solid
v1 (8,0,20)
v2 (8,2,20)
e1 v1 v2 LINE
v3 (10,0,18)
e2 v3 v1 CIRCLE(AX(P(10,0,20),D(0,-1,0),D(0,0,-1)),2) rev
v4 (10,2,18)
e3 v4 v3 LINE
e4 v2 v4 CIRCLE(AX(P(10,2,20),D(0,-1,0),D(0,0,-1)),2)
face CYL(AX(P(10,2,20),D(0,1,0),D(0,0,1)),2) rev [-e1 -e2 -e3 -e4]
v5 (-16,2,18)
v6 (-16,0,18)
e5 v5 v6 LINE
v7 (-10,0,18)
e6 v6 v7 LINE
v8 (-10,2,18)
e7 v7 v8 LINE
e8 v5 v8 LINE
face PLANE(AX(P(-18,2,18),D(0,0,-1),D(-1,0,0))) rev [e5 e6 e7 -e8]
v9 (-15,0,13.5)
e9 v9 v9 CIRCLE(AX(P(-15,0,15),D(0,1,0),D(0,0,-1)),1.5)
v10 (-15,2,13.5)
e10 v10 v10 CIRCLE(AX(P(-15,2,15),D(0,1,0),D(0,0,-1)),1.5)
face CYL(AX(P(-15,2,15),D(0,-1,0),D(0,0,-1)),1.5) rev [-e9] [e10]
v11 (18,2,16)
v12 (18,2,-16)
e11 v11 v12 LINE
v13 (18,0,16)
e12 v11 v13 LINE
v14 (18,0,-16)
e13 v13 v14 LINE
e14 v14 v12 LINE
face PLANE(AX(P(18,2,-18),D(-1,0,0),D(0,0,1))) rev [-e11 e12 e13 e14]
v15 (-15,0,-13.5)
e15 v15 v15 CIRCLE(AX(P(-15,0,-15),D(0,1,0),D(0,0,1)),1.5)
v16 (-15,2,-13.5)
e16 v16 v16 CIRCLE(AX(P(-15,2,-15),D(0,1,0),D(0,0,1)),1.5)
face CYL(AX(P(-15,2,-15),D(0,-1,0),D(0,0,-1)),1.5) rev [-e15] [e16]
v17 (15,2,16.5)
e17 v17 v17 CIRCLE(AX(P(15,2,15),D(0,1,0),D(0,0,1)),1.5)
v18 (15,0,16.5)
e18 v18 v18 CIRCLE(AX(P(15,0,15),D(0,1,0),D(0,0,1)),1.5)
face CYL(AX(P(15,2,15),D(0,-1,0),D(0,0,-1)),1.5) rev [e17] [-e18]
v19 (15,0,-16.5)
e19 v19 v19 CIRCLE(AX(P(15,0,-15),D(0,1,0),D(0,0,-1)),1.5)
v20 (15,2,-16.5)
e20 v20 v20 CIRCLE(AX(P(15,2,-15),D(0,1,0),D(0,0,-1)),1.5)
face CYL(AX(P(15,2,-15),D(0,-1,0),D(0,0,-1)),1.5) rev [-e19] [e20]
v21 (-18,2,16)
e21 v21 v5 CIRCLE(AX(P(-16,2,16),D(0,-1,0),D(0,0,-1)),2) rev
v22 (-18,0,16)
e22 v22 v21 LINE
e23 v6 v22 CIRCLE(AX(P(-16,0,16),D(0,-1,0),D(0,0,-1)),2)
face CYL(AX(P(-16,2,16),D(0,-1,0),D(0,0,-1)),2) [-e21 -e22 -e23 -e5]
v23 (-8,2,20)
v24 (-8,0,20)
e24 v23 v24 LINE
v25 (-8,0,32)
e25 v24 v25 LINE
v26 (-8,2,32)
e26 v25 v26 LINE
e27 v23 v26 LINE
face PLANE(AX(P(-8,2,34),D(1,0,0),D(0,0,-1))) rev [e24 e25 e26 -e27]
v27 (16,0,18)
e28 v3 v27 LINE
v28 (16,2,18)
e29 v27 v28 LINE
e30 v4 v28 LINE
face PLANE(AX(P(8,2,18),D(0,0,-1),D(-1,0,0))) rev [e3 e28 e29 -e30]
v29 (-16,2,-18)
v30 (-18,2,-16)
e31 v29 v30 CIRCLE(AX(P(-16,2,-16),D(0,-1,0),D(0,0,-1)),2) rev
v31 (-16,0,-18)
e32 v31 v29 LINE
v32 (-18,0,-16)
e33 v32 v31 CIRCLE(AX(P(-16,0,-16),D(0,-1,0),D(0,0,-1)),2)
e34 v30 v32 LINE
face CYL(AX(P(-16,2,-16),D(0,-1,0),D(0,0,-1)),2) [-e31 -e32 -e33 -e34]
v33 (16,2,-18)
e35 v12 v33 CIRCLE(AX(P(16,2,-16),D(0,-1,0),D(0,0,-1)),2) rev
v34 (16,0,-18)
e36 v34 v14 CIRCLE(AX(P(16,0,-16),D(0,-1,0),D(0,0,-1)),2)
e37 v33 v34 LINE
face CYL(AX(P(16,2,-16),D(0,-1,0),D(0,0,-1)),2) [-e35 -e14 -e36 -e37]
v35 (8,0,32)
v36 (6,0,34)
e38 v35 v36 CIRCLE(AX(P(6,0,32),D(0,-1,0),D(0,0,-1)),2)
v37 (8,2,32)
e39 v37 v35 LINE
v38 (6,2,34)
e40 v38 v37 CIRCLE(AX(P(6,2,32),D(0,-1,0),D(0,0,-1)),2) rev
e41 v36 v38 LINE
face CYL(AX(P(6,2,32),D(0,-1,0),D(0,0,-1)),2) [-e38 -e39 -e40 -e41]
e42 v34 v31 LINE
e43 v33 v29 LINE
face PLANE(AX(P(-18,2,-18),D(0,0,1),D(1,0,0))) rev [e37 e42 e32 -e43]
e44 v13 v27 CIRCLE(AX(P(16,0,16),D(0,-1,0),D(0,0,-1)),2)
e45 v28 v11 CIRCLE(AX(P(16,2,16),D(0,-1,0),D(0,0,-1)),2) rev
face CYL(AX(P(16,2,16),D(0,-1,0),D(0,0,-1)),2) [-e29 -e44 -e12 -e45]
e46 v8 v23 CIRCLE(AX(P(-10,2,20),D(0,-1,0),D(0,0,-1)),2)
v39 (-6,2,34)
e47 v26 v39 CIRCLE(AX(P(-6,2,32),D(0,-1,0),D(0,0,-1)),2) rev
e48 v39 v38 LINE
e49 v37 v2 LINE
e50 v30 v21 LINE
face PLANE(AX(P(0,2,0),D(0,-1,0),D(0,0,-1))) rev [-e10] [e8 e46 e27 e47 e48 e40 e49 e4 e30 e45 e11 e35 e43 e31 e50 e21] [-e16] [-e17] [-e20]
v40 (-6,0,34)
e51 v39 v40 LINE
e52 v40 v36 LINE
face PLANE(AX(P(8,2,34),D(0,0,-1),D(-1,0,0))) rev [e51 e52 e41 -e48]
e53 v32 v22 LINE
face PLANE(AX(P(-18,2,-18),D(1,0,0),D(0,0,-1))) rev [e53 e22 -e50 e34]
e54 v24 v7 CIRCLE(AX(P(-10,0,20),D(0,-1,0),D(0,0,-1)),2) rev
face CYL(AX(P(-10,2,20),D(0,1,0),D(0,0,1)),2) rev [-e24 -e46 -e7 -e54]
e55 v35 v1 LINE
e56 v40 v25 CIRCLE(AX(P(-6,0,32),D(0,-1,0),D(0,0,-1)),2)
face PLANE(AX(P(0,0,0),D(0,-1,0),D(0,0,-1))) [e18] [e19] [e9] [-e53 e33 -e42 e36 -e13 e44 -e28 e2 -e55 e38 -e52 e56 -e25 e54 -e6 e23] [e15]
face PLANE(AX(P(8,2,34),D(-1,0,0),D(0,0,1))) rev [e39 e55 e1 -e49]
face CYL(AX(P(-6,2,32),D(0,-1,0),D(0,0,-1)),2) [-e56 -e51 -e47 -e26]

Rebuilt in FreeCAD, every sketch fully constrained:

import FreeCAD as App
import Part
import Sketcher
Q = App.Units.Quantity


def edges_at(feature, points):
    """Names of the edges that pass closest to the given points."""
    edges = feature.Shape.Edges
    near = lambda p: min(range(len(edges)), key=lambda i: edges[i].distToShape(Part.Vertex(*p))[0])
    return sorted({f"Edge{near(p) + 1}" for p in points})

doc = App.newDocument("Part")
body = doc.addObject("PartDesign::Body", "Body")

# Sketch on XZ plane
sketch1 = body.newObject("Sketcher::SketchObject", "Sketch")
sketch1.AttachmentSupport = (doc.getObject("XZ_Plane"), [""])
sketch1.MapMode = "FlatFace"
sketch1.addGeometry([
    Part.LineSegment(App.Vector(18, -18, 0), App.Vector(-18, -18, 0)),  # 0
    Part.LineSegment(App.Vector(-18, -18, 0), App.Vector(-18, 18, 0)),  # 1
    Part.LineSegment(App.Vector(-18, 18, 0), App.Vector(-8, 18, 0)),  # 2
    Part.LineSegment(App.Vector(-8, 18, 0), App.Vector(-8, 34, 0)),  # 3
    Part.LineSegment(App.Vector(-8, 34, 0), App.Vector(8, 34, 0)),  # 4
    Part.LineSegment(App.Vector(8, 34, 0), App.Vector(8, 18, 0)),  # 5
    Part.LineSegment(App.Vector(8, 18, 0), App.Vector(18, 18, 0)),  # 6
    Part.LineSegment(App.Vector(18, 18, 0), App.Vector(18, -18, 0)),  # 7
    Part.Circle(App.Vector(15, 15, 0), App.Vector(0, 0, 1), 1.5),  # 8
    Part.Circle(App.Vector(-15, 15, 0), App.Vector(0, 0, 1), 1.5),  # 9
    Part.Circle(App.Vector(15, -15, 0), App.Vector(0, 0, 1), 1.5),  # 10
    Part.Circle(App.Vector(-15, -15, 0), App.Vector(0, 0, 1), 1.5),  # 11
], False)
sketch1.addConstraint([
    Sketcher.Constraint("Coincident", 0, 2, 1, 1),
    Sketcher.Constraint("Coincident", 1, 2, 2, 1),
    Sketcher.Constraint("Coincident", 2, 2, 3, 1),
    Sketcher.Constraint("Coincident", 3, 2, 4, 1),
    Sketcher.Constraint("Coincident", 4, 2, 5, 1),
    Sketcher.Constraint("Coincident", 5, 2, 6, 1),
    Sketcher.Constraint("Coincident", 6, 2, 7, 1),
    Sketcher.Constraint("Coincident", 7, 2, 0, 1),
    Sketcher.Constraint("Horizontal", 0),
    Sketcher.Constraint("Vertical", 1),
    Sketcher.Constraint("Horizontal", 2),
    Sketcher.Constraint("Vertical", 3),
    Sketcher.Constraint("Horizontal", 4),
    Sketcher.Constraint("Vertical", 5),
    Sketcher.Constraint("Horizontal", 6),
    Sketcher.Constraint("Vertical", 7),
    Sketcher.Constraint("Equal", 8, 9),
    Sketcher.Constraint("Equal", 9, 10),
    Sketcher.Constraint("Equal", 10, 11),
    Sketcher.Constraint("Symmetric", 9, 3, 10, 3, -1, 1),
    Sketcher.Constraint("Symmetric", 8, 3, 11, 3, -1, 1),
    Sketcher.Constraint("Symmetric", 0, 2, 6, 2, -1, 1),
    Sketcher.Constraint("Symmetric", 8, 3, 9, 3, -2),
    Sketcher.Constraint("Symmetric", 2, 2, 5, 2, -2),
    Sketcher.Constraint("Equal", 0, 1),
    Sketcher.Constraint("Equal", 4, 3),
    Sketcher.Constraint("Diameter", 8, Q("3 mm")),
    Sketcher.Constraint("DistanceX", 0, 2, 0, 1, Q("36 mm")),
    Sketcher.Constraint("DistanceX", 2, 1, 2, 2, Q("10 mm")),
    Sketcher.Constraint("DistanceX", -1, 1, 8, 3, Q("15 mm")),
    Sketcher.Constraint("DistanceY", -1, 1, 8, 3, Q("15 mm")),
])
pad1 = body.newObject("PartDesign::Pad", "Pad")
pad1.Profile = sketch1
pad1.Length = 2
pad1.Reversed = True
doc.recompute()

fillet = body.newObject("PartDesign::Fillet", "Fillet")
fillet.Base = (pad1, edges_at(pad1, [
    (8, 1, 18),
    (8, 1, 34),
    (-8, 1, 34),
    (-8, 1, 18),
    (-18, 1, 18),
    (-18, 1, -18),
    (18, 1, -18),
    (18, 1, 18),
]))
fillet.Radius = 2

doc.recompute()
